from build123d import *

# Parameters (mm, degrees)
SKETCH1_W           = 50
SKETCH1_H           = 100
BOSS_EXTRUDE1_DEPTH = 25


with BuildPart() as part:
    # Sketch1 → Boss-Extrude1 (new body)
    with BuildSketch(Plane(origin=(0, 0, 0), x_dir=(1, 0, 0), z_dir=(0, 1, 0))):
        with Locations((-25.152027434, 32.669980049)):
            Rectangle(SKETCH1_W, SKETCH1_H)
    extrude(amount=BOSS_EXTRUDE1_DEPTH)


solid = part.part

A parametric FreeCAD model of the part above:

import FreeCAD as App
import Part
import Sketcher
Q = App.Units.Quantity

doc = App.newDocument("Part")
body = doc.addObject("PartDesign::Body", "Body")

sketch1 = body.newObject("Sketcher::SketchObject", "Sketch")
sketch1.AttachmentSupport = (doc.getObject("XZ_Plane"), [""])
sketch1.MapMode = "FlatFace"
sketch1.addGeometry([
    Part.LineSegment(App.Vector(-50, -83, 0), App.Vector(-50, 17, 0)),
    Part.LineSegment(App.Vector(-50, 17, 0), App.Vector(0, 17, 0)),
    Part.LineSegment(App.Vector(0, 17, 0), App.Vector(0, -83, 0)),
    Part.LineSegment(App.Vector(0, -83, 0), App.Vector(-50, -83, 0)),
], False)
sketch1.addConstraint([
    Sketcher.Constraint("Coincident", 0, 2, 1, 1),
    Sketcher.Constraint("Coincident", 1, 2, 2, 1),
    Sketcher.Constraint("Coincident", 2, 2, 3, 1),
    Sketcher.Constraint("Coincident", 3, 2, 0, 1),
    Sketcher.Constraint("Vertical", 0),
    Sketcher.Constraint("Horizontal", 1),
    Sketcher.Constraint("Vertical", 2),
    Sketcher.Constraint("Horizontal", 3),
    Sketcher.Constraint("DistanceX", 1, 1, 1, 2, Q("50 mm")),
    Sketcher.Constraint("DistanceY", 0, 1, 0, 2, Q("100 mm")),
    Sketcher.Constraint("DistanceY", -1, 1, 0, 2, Q("17.33002 mm")),
    Sketcher.Constraint("DistanceX", 0, 2, -1, 1, Q("50.152027 mm")),
])
pad1 = body.newObject("PartDesign::Pad", "Pad")
pad1.Profile = sketch1
pad1.Length = 25
pad1.Reversed = True

doc.recompute()
